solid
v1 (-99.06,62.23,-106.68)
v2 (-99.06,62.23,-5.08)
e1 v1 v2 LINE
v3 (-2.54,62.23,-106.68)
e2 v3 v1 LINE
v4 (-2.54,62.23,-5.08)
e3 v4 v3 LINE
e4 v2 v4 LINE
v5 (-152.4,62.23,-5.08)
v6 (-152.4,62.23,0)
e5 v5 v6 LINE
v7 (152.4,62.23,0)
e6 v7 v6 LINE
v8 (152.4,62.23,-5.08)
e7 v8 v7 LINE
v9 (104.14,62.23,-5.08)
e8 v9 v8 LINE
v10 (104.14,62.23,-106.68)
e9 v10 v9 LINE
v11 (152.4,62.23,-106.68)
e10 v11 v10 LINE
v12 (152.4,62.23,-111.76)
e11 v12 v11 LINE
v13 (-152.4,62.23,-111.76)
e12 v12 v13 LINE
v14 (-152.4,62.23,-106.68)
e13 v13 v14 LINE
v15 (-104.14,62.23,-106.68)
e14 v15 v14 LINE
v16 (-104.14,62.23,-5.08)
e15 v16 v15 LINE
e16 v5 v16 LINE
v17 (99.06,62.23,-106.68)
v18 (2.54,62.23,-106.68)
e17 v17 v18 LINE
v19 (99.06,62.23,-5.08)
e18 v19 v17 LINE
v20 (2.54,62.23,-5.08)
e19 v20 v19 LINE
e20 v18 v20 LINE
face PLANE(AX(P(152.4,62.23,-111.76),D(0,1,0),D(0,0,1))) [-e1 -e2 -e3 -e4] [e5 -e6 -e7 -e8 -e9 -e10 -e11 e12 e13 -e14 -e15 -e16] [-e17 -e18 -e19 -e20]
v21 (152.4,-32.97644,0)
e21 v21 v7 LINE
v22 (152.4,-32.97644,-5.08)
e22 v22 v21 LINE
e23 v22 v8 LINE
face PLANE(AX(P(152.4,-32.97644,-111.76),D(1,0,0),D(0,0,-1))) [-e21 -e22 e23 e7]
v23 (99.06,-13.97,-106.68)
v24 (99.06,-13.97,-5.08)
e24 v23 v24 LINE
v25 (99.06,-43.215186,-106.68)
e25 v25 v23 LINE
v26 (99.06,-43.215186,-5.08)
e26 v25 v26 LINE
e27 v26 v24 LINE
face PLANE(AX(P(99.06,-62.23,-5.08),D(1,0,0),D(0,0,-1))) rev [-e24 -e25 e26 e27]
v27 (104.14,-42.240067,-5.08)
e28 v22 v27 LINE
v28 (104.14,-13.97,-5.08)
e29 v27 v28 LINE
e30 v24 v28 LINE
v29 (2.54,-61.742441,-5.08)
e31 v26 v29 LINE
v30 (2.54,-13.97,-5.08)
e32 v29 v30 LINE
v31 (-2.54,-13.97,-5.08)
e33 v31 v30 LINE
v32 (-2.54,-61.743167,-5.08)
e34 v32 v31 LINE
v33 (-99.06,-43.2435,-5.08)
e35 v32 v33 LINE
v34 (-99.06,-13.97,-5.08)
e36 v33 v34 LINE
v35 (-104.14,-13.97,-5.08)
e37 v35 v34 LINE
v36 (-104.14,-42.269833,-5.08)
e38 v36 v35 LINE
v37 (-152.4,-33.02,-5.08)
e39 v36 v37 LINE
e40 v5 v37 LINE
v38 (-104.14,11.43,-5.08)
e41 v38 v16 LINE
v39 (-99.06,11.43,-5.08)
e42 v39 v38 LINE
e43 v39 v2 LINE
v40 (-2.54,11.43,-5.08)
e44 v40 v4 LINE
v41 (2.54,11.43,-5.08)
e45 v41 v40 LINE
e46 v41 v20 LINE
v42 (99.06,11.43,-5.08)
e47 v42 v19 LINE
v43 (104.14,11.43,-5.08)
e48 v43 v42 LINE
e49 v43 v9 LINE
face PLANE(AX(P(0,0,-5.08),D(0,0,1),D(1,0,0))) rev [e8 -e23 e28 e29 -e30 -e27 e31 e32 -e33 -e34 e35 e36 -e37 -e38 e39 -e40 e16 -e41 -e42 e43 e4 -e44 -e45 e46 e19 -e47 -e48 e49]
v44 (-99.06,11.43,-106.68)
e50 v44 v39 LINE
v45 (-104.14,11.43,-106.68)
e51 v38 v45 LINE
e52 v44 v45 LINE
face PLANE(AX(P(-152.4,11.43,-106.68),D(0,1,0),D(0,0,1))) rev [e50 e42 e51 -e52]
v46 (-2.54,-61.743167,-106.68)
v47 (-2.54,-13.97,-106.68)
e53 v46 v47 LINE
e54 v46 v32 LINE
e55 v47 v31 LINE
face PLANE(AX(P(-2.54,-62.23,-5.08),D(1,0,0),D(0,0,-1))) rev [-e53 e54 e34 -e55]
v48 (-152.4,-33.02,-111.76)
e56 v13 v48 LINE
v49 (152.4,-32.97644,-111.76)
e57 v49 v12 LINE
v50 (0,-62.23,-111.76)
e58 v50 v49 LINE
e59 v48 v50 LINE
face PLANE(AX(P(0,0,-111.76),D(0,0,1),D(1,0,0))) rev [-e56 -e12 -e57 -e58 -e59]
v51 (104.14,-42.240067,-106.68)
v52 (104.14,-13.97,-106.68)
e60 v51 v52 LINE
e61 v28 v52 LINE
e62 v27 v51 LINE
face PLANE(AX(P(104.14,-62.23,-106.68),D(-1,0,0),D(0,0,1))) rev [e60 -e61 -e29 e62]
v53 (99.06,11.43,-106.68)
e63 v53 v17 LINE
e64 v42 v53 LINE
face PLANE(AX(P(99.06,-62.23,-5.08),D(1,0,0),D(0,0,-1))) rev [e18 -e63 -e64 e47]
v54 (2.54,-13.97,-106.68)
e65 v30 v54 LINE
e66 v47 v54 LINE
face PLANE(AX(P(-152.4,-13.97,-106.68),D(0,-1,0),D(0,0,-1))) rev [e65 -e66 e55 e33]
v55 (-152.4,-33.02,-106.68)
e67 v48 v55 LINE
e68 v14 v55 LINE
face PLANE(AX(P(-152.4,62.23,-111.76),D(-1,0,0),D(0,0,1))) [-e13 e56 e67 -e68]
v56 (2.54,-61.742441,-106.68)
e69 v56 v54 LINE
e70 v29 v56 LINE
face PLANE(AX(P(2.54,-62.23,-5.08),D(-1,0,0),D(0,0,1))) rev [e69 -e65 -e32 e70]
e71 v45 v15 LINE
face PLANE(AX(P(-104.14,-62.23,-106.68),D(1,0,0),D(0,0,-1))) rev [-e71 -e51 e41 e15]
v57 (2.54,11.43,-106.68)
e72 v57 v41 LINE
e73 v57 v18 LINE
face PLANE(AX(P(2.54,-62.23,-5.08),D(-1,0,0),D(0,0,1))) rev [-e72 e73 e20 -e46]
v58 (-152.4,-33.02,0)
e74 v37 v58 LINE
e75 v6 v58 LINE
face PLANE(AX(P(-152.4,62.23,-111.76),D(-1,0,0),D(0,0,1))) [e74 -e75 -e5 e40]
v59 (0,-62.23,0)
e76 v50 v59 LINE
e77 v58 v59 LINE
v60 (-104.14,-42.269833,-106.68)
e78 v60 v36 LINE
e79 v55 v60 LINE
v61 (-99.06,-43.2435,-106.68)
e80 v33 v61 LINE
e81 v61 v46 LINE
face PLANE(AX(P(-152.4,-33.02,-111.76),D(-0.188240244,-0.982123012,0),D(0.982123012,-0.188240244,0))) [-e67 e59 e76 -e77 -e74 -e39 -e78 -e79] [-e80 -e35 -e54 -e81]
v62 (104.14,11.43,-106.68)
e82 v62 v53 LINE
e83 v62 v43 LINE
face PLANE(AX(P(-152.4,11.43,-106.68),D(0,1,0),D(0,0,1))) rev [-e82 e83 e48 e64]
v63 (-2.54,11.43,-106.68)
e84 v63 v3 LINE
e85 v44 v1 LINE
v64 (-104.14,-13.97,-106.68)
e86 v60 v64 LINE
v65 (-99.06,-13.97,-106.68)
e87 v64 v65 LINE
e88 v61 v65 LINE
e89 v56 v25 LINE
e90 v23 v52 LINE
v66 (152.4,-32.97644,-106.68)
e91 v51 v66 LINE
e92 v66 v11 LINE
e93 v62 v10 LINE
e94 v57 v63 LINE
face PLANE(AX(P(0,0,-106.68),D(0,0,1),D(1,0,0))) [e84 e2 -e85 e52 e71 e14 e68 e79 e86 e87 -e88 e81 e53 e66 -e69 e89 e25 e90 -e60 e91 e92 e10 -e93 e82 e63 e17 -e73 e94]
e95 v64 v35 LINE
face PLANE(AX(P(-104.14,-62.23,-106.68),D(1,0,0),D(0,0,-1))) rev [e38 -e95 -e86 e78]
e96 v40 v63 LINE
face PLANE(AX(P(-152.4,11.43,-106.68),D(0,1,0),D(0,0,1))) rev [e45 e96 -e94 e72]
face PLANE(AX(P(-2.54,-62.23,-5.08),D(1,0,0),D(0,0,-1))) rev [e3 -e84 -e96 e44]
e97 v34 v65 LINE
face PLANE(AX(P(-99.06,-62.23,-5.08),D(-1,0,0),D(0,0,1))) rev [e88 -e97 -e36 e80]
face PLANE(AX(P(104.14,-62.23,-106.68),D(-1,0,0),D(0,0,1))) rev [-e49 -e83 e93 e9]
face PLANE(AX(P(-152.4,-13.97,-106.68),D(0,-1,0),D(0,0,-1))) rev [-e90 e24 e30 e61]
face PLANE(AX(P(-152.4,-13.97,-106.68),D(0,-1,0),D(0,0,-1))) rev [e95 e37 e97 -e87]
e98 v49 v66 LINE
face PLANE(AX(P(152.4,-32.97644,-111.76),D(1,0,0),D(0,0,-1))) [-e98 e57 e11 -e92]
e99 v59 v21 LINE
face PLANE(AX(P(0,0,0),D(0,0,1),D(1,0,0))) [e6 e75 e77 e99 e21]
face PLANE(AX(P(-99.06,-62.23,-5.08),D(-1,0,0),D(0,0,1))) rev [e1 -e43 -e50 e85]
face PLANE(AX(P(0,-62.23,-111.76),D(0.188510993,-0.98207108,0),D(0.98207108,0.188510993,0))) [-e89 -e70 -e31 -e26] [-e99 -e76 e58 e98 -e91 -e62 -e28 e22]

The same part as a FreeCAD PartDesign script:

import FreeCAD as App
import Part
import Sketcher
Q = App.Units.Quantity


def add_polygon(sketch, points):
    """Adds a closed chain of lines whose ends are joined by coincident constraints."""
    first, n = sketch.GeometryCount, len(points)
    for a, b in zip(points, points[1:] + points[:1]):
        sketch.addGeometry(Part.LineSegment(App.Vector(*a, 0), App.Vector(*b, 0)), False)
    for i in range(n):
        sketch.addConstraint(Sketcher.Constraint("Coincident", first + i, 2, first + (i + 1) % n, 1))

doc = App.newDocument("Part")
params = doc.addObject("Spreadsheet::Sheet", "Params")
for row, (alias, value) in enumerate([
    ("sketch1_width", "12 in"),
    ("sketch1_height", "3.75 in"),
    ("pad1_length", "4.4 in"),
    ("sketch2_width", "12 in"),
    ("sketch2_height", "1 in"),
    ("pocket1_length", "4 in"),
    ("sketch3_height", "4 in"),
    ("sketch3_width", "3.8 in"),
    ("sketch3_width2", "1.9 in"),
], start=1):
    params.set(f"A{row}", alias)
    params.set(f"B{row}", "=" + value)
    params.setAlias(f"B{row}", alias)

body = doc.addObject("PartDesign::Body", "Body")

sketch1 = body.newObject("Sketcher::SketchObject", "Sketch")
sketch1.AttachmentSupport = (doc.getObject("XY_Plane"), [""])
sketch1.MapMode = "FlatFace"
add_polygon(sketch1, [(-152, 62), (-152, -33), (0, -62), (152, -33), (152, 62)])
sketch1.addConstraint(Sketcher.Constraint("Vertical", 0))
sketch1.addConstraint(Sketcher.Constraint("Vertical", 3))
sketch1.addConstraint(Sketcher.Constraint("Horizontal", 4))
sketch1.addConstraint(Sketcher.Constraint("PointOnObject", 1, 2, -2))
sketch1.addConstraint(Sketcher.Constraint("DistanceX", 4, 2, 4, 1, Q("12 in")))
sketch1.addConstraint(Sketcher.Constraint("DistanceX", 0, 2, -1, 1, Q("6 in")))
sketch1.addConstraint(Sketcher.Constraint("DistanceY", 0, 2, 0, 1, Q("3.75 in")))
sketch1.addConstraint(Sketcher.Constraint("DistanceY", 0, 2, -1, 1, Q("1.3 in")))
sketch1.addConstraint(Sketcher.Constraint("DistanceY", 1, 2, 3, 2, Q("4.9 in")))
sketch1.addConstraint(Sketcher.Constraint("DistanceY", 3, 1, 3, 2, 95.20644))
sketch1.setExpression("Constraints[9]", "Params.sketch1_width")
sketch1.setExpression("Constraints[11]", "Params.sketch1_height")
pad1 = body.newObject("PartDesign::Pad", "Pad")
pad1.Profile = sketch1
pad1.setExpression("Length", "Params.pad1_length")
pad1.Reversed = True

sketch2 = body.newObject("Sketcher::SketchObject", "Sketch001")
sketch2.AttachmentSupport = (doc.getObject("XY_Plane"), [""])
sketch2.MapMode = "FlatFace"
sketch2.AttachmentOffset = App.Placement(App.Vector(0, 0, -0.2 * 25.4), App.Rotation())
add_polygon(sketch2, [(-152, 11), (-152, -14), (152, -14), (152, 11)])
sketch2.addConstraint(Sketcher.Constraint("Vertical", 0))
sketch2.addConstraint(Sketcher.Constraint("Horizontal", 1))
sketch2.addConstraint(Sketcher.Constraint("Vertical", 2))
sketch2.addConstraint(Sketcher.Constraint("Horizontal", 3))
sketch2.addConstraint(Sketcher.Constraint("DistanceX", 1, 1, 1, 2, Q("12 in")))
sketch2.addConstraint(Sketcher.Constraint("DistanceY", 0, 2, 0, 1, Q("1 in")))
sketch2.addConstraint(Sketcher.Constraint("DistanceX", 0, 2, -1, 1, Q("6 in")))
sketch2.addConstraint(Sketcher.Constraint("DistanceY", 0, 2, -1, 1, Q("0.55 in")))
sketch2.setExpression("Constraints[8]", "Params.sketch2_width")
sketch2.setExpression("Constraints[9]", "Params.sketch2_height")
pocket1 = body.newObject("PartDesign::Pocket", "Pocket")
pocket1.Profile = sketch2
pocket1.setExpression("Length", "Params.pocket1_length")

sketch3 = body.newObject("Sketcher::SketchObject", "Sketch002")
sketch3.AttachmentSupport = (doc.getObject("XZ_Plane"), [""])
sketch3.MapMode = "FlatFace"
sketch3.AttachmentOffset = App.Placement(App.Vector(0, 0, -2.45 * 25.4), App.Rotation())
add_polygon(sketch3, [(-99, -107), (-99, -5), (-3, -5), (-3, -107)])
add_polygon(sketch3, [(3, -107), (3, -5), (99, -5), (99, -107)])
add_polygon(sketch3, [(-152, -107), (-152, -5), (-104, -5), (-104, -107)])
add_polygon(sketch3, [(104, -107), (104, -5), (152, -5), (152, -107)])
sketch3.addConstraint(Sketcher.Constraint("Vertical", 0))
sketch3.addConstraint(Sketcher.Constraint("Horizontal", 1))
sketch3.addConstraint(Sketcher.Constraint("Vertical", 2))
sketch3.addConstraint(Sketcher.Constraint("Horizontal", 3))
sketch3.addConstraint(Sketcher.Constraint("Vertical", 4))
sketch3.addConstraint(Sketcher.Constraint("Horizontal", 5))
sketch3.addConstraint(Sketcher.Constraint("Vertical", 6))
sketch3.addConstraint(Sketcher.Constraint("Horizontal", 7))
sketch3.addConstraint(Sketcher.Constraint("Vertical", 8))
sketch3.addConstraint(Sketcher.Constraint("Horizontal", 9))
sketch3.addConstraint(Sketcher.Constraint("Vertical", 10))
sketch3.addConstraint(Sketcher.Constraint("Horizontal", 11))
sketch3.addConstraint(Sketcher.Constraint("Vertical", 12))
sketch3.addConstraint(Sketcher.Constraint("Horizontal", 13))
sketch3.addConstraint(Sketcher.Constraint("Vertical", 14))
sketch3.addConstraint(Sketcher.Constraint("Horizontal", 15))
sketch3.addConstraint(Sketcher.Constraint("Symmetric", 1, 2, 4, 2, -2))
sketch3.addConstraint(Sketcher.Constraint("Symmetric", 3, 2, 6, 2, -2))
sketch3.addConstraint(Sketcher.Constraint("Symmetric", 9, 2, 12, 2, -2))
sketch3.addConstraint(Sketcher.Constraint("Symmetric", 11, 2, 14, 2, -2))
sketch3.addConstraint(Sketcher.Constraint("Horizontal", 5, 2, 8, 2))
sketch3.addConstraint(Sketcher.Constraint("Horizontal", 7, 2, 10, 2))
sketch3.addConstraint(Sketcher.Constraint("DistanceY", 0, 1, 0, 2, Q("4 in")))
sketch3.addConstraint(Sketcher.Constraint("DistanceX", 1, 1, 1, 2, Q("3.8 in")))
sketch3.addConstraint(Sketcher.Constraint("DistanceX", 9, 1, 9, 2, Q("1.9 in")))
sketch3.addConstraint(Sketcher.Constraint("DistanceX", 8, 2, -1, 1, Q("6 in")))
sketch3.addConstraint(Sketcher.Constraint("DistanceX", 0, 2, 4, 2, Q("4 in")))
sketch3.addConstraint(Sketcher.Constraint("DistanceY", 0, 2, -1, 1, Q("0.2 in")))
sketch3.setExpression("Constraints[38]", "Params.sketch3_height")
sketch3.setExpression("Constraints[39]", "Params.sketch3_width")
sketch3.setExpression("Constraints[40]", "Params.sketch3_width2")
pocket2 = body.newObject("PartDesign::Pocket", "Pocket001")
pocket2.Profile = sketch3
pocket2.Type = "ThroughAll"
pocket2.Midplane = True

doc.recompute()
